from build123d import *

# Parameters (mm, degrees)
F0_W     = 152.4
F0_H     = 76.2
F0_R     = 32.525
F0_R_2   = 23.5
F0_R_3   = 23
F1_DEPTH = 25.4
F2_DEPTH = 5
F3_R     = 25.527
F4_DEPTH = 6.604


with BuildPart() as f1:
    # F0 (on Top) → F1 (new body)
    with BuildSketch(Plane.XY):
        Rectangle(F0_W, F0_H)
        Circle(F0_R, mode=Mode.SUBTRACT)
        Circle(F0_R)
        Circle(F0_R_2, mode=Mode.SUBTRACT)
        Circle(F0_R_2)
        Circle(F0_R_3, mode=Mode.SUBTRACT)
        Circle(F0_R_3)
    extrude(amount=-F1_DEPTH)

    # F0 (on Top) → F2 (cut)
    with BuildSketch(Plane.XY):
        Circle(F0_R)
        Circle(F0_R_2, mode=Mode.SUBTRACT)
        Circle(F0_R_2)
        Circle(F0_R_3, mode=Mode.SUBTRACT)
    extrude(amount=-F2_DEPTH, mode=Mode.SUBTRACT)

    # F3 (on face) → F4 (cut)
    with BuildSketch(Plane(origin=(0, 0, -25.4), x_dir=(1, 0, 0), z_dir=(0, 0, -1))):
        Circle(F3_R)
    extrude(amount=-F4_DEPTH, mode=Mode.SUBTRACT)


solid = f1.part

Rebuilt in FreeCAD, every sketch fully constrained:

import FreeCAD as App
import Part
import Sketcher
from FreeCAD import Vector
Q = App.Units.Quantity


def add_polygon(sketch, points):
    """Adds a closed chain of lines whose ends are joined by coincident constraints."""
    first, n = sketch.GeometryCount, len(points)
    for a, b in zip(points, points[1:] + points[:1]):
        sketch.addGeometry(Part.LineSegment(App.Vector(*a, 0), App.Vector(*b, 0)), False)
    for i in range(n):
        sketch.addConstraint(Sketcher.Constraint("Coincident", first + i, 2, first + (i + 1) % n, 1))

doc = App.newDocument("Part")
body = doc.addObject("PartDesign::Body", "Body")

# Sketch on XY plane
sketch1 = doc.addObject("Sketcher::SketchObject", "Sketch")
body.addObject(sketch1)
sketch1.AttachmentSupport = (doc.XY_Plane, [""])
sketch1.MapMode = "FlatFace"
add_polygon(sketch1, [(-76, 38), (-76, -38), (76, -38), (76, 38)])  # lines 0-3
sketch1.addConstraint([
    Sketcher.Constraint("Vertical", 0),
    Sketcher.Constraint("Horizontal", 1),
    Sketcher.Constraint("Vertical", 2),
    Sketcher.Constraint("Horizontal", 3),
    Sketcher.Constraint("Symmetric", 0, 2, 2, 2, -1, 1),
    Sketcher.Constraint("DistanceX", 1, 1, 1, 2, Q("6 in")),
    Sketcher.Constraint("DistanceY", 0, 2, 0, 1, Q("3 in")),
])
pad1 = doc.addObject("PartDesign::Pad", "Pad")
body.addObject(pad1)
pad1.Profile = sketch1
pad1.Length = Q("1 in")
pad1.Reversed = True

# Sketch on XY plane
sketch2 = doc.addObject("Sketcher::SketchObject", "Sketch001")
body.addObject(sketch2)
sketch2.AttachmentSupport = (doc.XY_Plane, [""])
sketch2.MapMode = "FlatFace"
sketch2.addGeometry([
    Part.Circle(Vector(0, 0, 0), Vector(0, 0, 1), 33),
    Part.Circle(Vector(0, 0, 0), Vector(0, 0, 1), 23),
], False)
sketch2.addConstraint([
    Sketcher.Constraint("Coincident", 0, 3, -1, 1),
    Sketcher.Constraint("Coincident", 1, 3, -1, 1),
    Sketcher.Constraint("Diameter", 0, 65.05),
    Sketcher.Constraint("Diameter", 1, 46.0),
])
pocket1 = doc.addObject("PartDesign::Pocket", "Pocket")
body.addObject(pocket1)
pocket1.Profile = sketch2
pocket1.Length = 5

# Sketch on XY plane
sketch3 = doc.addObject("Sketcher::SketchObject", "Sketch002")
body.addObject(sketch3)
sketch3.AttachmentSupport = (doc.XY_Plane, [""])
sketch3.MapMode = "FlatFace"
sketch3.AttachmentOffset = App.Placement(Vector(0, 0, -1 * 25.4), App.Rotation())
sketch3.addGeometry(Part.Circle(Vector(0, 0, 0), Vector(0, 0, 1), 26), False)
sketch3.addConstraint([
    Sketcher.Constraint("Coincident", 0, 3, -1, 1),
    Sketcher.Constraint("Diameter", 0, Q("2.01 in")),
])
pocket2 = doc.addObject("PartDesign::Pocket", "Pocket001")
body.addObject(pocket2)
pocket2.Profile = sketch3
pocket2.Length = Q("0.26 in")
pocket2.Reversed = True

doc.recompute()
